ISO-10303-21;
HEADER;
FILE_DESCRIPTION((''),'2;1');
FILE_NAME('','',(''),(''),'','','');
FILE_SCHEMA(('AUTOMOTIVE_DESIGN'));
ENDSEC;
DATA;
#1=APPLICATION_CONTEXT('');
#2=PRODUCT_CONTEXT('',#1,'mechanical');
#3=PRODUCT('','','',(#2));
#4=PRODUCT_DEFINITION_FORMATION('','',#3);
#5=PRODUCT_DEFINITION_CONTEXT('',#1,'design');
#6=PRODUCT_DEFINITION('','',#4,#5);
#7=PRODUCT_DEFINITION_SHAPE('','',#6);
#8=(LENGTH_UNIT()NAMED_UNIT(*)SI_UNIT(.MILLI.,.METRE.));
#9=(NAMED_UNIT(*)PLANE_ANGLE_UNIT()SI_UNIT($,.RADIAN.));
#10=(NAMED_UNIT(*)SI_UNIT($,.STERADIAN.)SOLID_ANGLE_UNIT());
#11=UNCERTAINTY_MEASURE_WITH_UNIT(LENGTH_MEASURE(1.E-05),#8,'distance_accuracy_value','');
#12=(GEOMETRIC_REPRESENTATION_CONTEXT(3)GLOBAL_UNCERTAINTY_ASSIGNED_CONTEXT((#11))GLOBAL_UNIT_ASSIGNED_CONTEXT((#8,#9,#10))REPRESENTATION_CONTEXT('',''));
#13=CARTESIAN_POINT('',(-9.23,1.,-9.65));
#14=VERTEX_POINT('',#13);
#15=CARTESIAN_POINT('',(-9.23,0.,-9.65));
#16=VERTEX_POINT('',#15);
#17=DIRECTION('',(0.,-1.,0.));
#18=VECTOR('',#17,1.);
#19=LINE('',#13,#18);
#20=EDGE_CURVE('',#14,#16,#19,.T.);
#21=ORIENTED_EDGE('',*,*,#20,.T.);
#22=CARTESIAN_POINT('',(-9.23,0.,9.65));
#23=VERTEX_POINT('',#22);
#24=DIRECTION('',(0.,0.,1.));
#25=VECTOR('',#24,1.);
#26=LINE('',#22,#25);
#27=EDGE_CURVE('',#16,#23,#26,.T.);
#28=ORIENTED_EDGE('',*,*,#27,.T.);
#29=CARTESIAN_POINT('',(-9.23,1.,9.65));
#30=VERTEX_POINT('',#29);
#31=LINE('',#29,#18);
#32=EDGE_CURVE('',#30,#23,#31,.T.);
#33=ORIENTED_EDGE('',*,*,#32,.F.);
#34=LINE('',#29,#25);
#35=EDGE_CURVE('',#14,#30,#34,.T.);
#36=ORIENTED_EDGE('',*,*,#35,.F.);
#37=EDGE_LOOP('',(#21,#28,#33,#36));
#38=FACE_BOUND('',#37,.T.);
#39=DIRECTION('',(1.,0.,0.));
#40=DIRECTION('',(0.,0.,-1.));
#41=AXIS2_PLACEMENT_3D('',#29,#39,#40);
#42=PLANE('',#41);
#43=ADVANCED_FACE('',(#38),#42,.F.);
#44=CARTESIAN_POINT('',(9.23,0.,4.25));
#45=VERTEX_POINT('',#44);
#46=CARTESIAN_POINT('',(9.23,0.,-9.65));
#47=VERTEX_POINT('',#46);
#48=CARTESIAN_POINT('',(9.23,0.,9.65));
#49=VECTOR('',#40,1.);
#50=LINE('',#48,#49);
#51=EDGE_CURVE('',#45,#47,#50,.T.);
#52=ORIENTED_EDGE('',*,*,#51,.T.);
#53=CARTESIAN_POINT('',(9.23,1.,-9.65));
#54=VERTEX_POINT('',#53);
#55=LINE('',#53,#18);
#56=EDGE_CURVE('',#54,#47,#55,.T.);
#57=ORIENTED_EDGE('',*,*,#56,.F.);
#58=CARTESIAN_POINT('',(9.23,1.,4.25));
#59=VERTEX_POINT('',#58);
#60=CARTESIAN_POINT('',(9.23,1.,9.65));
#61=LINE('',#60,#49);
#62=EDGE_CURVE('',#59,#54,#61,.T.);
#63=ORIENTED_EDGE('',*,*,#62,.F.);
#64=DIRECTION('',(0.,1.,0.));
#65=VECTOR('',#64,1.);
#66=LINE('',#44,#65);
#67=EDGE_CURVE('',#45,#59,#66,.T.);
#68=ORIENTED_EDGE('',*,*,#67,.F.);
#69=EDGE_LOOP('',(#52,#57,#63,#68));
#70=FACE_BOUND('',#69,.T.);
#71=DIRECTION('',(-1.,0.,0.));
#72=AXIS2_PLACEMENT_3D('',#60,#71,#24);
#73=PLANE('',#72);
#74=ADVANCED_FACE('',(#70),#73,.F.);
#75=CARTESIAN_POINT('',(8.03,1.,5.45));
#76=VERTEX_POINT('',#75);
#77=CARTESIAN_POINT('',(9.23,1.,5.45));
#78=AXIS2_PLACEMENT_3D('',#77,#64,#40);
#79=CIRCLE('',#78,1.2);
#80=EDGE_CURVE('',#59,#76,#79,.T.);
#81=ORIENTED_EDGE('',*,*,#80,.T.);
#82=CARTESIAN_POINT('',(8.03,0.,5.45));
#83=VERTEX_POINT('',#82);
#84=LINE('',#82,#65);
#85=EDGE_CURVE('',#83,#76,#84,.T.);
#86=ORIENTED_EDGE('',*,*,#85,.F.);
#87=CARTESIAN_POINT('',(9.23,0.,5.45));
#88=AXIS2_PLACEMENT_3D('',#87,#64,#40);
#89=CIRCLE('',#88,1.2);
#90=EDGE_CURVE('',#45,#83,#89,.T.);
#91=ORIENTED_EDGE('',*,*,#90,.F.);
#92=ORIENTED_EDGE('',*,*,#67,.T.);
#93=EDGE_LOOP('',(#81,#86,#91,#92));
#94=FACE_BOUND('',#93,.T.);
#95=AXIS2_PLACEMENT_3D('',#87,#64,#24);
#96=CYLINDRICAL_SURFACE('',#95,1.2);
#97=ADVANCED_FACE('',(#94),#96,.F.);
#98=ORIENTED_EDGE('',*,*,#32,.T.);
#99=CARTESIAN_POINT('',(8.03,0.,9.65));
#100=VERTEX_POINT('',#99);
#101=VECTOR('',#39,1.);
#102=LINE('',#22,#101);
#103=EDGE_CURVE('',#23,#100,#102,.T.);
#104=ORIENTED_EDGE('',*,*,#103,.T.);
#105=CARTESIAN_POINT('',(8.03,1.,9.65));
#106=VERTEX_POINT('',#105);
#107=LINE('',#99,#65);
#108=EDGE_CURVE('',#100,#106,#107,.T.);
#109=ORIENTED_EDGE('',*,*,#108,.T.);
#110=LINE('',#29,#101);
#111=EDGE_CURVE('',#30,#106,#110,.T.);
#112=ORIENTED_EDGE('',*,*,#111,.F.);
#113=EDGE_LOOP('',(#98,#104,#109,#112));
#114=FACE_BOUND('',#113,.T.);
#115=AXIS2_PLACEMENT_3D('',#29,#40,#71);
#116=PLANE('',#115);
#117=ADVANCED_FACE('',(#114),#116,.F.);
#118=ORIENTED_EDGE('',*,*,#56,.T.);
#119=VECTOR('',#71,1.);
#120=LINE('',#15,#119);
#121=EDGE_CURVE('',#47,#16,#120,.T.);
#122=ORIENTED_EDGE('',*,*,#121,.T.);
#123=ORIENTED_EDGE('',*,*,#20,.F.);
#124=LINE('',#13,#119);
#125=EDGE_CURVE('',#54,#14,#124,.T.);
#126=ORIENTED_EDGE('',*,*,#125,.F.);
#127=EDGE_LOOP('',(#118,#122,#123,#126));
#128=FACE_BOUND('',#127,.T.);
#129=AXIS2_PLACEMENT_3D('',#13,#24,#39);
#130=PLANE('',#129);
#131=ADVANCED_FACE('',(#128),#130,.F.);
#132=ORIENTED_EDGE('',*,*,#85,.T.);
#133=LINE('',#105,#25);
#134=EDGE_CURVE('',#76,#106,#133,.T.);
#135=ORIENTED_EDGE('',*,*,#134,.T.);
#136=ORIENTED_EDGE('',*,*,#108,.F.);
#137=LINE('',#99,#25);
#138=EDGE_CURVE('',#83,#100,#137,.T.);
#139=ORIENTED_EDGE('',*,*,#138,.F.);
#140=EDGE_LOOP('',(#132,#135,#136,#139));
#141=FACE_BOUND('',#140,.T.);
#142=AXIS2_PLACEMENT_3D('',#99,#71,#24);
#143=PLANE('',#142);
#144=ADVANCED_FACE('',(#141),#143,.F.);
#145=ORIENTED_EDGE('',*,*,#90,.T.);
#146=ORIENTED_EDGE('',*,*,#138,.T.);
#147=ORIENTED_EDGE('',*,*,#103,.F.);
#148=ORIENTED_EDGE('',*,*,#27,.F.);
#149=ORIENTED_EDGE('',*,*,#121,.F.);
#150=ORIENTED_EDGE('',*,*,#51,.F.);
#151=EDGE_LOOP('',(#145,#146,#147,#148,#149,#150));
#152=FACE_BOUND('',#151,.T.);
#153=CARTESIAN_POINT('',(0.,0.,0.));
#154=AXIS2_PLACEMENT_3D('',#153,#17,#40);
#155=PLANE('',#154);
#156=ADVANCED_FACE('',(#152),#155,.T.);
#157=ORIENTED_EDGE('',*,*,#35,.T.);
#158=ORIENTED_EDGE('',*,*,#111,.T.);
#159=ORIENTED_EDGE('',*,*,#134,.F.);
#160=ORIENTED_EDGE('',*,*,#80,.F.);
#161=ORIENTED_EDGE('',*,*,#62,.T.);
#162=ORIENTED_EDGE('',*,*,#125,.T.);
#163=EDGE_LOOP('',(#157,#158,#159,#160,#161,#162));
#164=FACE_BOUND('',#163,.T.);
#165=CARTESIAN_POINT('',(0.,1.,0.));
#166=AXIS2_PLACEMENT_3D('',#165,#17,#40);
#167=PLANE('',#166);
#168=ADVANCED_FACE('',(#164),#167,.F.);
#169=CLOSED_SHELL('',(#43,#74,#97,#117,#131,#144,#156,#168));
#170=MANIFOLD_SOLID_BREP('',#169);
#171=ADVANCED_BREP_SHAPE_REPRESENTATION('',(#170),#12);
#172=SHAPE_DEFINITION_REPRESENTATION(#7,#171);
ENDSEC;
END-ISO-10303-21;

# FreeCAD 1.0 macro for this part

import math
import FreeCAD as App
import Part
import Sketcher

V = App.Vector


def add_polygon(sketch, points):
    """Adds a closed chain of lines whose ends are joined by coincident constraints."""
    first, n = sketch.GeometryCount, len(points)
    for a, b in zip(points, points[1:] + points[:1]):
        sketch.addGeometry(Part.LineSegment(App.Vector(*a, 0), App.Vector(*b, 0)), False)
    for i in range(n):
        sketch.addConstraint(Sketcher.Constraint("Coincident", first + i, 2, first + (i + 1) % n, 1))

doc = App.newDocument("Part")
body = doc.addObject("PartDesign::Body", "Body")

sketch1 = body.newObject("Sketcher::SketchObject", "Sketch")
sketch1.AttachmentSupport = (doc.getObject("XZ_Plane"), [""])
sketch1.MapMode = "FlatFace"
add_polygon(sketch1, [(-9.23, -9.65), (-9.23, 9.65), (9.23, 9.65), (9.23, -9.65)])
sketch1.addConstraint(Sketcher.Constraint("Vertical", 0))
sketch1.addConstraint(Sketcher.Constraint("Horizontal", 1))
sketch1.addConstraint(Sketcher.Constraint("Vertical", 2))
sketch1.addConstraint(Sketcher.Constraint("Horizontal", 3))
sketch1.addConstraint(Sketcher.Constraint("Symmetric", 0, 2, 2, 2, -1, 1))
sketch1.addConstraint(Sketcher.Constraint("DistanceY", 0, 1, 0, 2, 19.3))
sketch1.addConstraint(Sketcher.Constraint("DistanceX", 1, 1, 1, 2, 18.46))
pad1 = body.newObject("PartDesign::Pad", "Pad")
pad1.Profile = sketch1
pad1.Length = 1
pad1.Reversed = True

sketch2 = body.newObject("Sketcher::SketchObject", "Sketch001")
sketch2.AttachmentSupport = (doc.getObject("XZ_Plane"), [""])
sketch2.MapMode = "FlatFace"
sketch2.AttachmentOffset = App.Placement(V(0, 0, -1), App.Rotation())
sketch2.addGeometry(Part.LineSegment(V(8.03, 9.65, 0), V(9.23, 9.65, 0)), False)
sketch2.addGeometry(Part.LineSegment(V(9.23, 9.65, 0), V(9.23, 4.25, 0)), False)
sketch2.addGeometry(Part.ArcOfCircle(Part.Circle(V(9.23, 5.45, 0), V(0, 0, 1), 1.2), math.radians(-180), math.radians(-90)), False)
sketch2.addGeometry(Part.LineSegment(V(8.03, 5.45, 0), V(8.03, 9.65, 0)), False)
sketch2.addConstraint(Sketcher.Constraint("Coincident", 0, 2, 1, 1))
sketch2.addConstraint(Sketcher.Constraint("Coincident", 1, 2, 2, 2))
sketch2.addConstraint(Sketcher.Constraint("Tangent", 2, 1, 3, 1))
sketch2.addConstraint(Sketcher.Constraint("Coincident", 3, 2, 0, 1))
sketch2.addConstraint(Sketcher.Constraint("Horizontal", 0))
sketch2.addConstraint(Sketcher.Constraint("Vertical", 1))
sketch2.addConstraint(Sketcher.Constraint("Vertical", 3))
sketch2.addConstraint(Sketcher.Constraint("Vertical", 2, 3, 0, 2))
sketch2.addConstraint(Sketcher.Constraint("Radius", 2, 1.2))
sketch2.addConstraint(Sketcher.Constraint("DistanceY", 1, 2, 1, 1, 5.4))
sketch2.addConstraint(Sketcher.Constraint("DistanceX", -1, 1, 2, 3, 9.23))
sketch2.addConstraint(Sketcher.Constraint("DistanceY", -1, 1, 2, 3, 5.45))
pocket1 = body.newObject("PartDesign::Pocket", "Pocket")
pocket1.Profile = sketch2
pocket1.Type = "ThroughAll"
pocket1.Reversed = True

doc.recompute()
